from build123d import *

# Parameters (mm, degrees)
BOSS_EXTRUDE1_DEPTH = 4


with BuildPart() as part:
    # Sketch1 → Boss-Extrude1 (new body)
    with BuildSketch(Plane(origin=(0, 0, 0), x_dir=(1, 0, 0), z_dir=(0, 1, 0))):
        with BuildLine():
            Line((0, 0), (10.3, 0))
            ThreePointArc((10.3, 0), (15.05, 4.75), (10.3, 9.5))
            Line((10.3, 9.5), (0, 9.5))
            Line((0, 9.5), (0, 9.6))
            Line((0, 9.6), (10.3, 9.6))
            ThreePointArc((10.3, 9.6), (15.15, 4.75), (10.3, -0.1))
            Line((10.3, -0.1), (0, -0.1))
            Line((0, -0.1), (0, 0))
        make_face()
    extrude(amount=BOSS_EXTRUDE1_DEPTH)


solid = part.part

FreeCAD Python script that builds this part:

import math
import FreeCAD as App
import Part
import Sketcher
Q = App.Units.Quantity

doc = App.newDocument("Part")
params = doc.addObject("Spreadsheet::Sheet", "Params")
for row, (alias, value) in enumerate([
    ("sketch1_radius", "4.85 mm"),
    ("sketch1_radius2", "4.75 mm"),
    ("sketch1_width", "10.3 mm"),
    ("pad1_length", "4 mm"),
], start=1):
    params.set(f"A{row}", alias)
    params.set(f"B{row}", "=" + value)
    params.setAlias(f"B{row}", alias)

body = doc.addObject("PartDesign::Body", "Body")

# Sketch on XZ plane
sketch1 = body.newObject("Sketcher::SketchObject", "Sketch")
sketch1.AttachmentSupport = (doc.getObject("XZ_Plane"), [""])
sketch1.MapMode = "FlatFace"
sketch1.addGeometry(Part.LineSegment(App.Vector(10.3, 0, 0), App.Vector(0, 0, 0)), False)
sketch1.addGeometry(Part.LineSegment(App.Vector(0, 0, 0), App.Vector(0, 0.1, 0)), False)
sketch1.addGeometry(Part.LineSegment(App.Vector(0, 0.1, 0), App.Vector(10.3, 0.1, 0)), False)
sketch1.addGeometry(Part.ArcOfCircle(Part.Circle(App.Vector(10.3, -4.75, 0), App.Vector(0, 0, 1), 4.85), math.radians(-90), math.radians(90)), False)
sketch1.addGeometry(Part.LineSegment(App.Vector(10.3, -9.6, 0), App.Vector(0, -9.6, 0)), False)
sketch1.addGeometry(Part.LineSegment(App.Vector(0, -9.6, 0), App.Vector(0, -9.5, 0)), False)
sketch1.addGeometry(Part.LineSegment(App.Vector(0, -9.5, 0), App.Vector(10.3, -9.5, 0)), False)
sketch1.addGeometry(Part.ArcOfCircle(Part.Circle(App.Vector(10.3, -4.75, 0), App.Vector(0, 0, 1), 4.75), math.radians(-90), math.radians(90)), False)
sketch1.addConstraint(Sketcher.Constraint("Coincident", 0, 2, 1, 1))
sketch1.addConstraint(Sketcher.Constraint("Coincident", 1, 2, 2, 1))
sketch1.addConstraint(Sketcher.Constraint("Tangent", 2, 2, 3, 2))
sketch1.addConstraint(Sketcher.Constraint("Tangent", 3, 1, 4, 1))
sketch1.addConstraint(Sketcher.Constraint("Coincident", 4, 2, 5, 1))
sketch1.addConstraint(Sketcher.Constraint("Coincident", 5, 2, 6, 1))
sketch1.addConstraint(Sketcher.Constraint("Tangent", 6, 2, 7, 1))
sketch1.addConstraint(Sketcher.Constraint("Tangent", 7, 2, 0, 1))
sketch1.addConstraint(Sketcher.Constraint("Horizontal", 0))
sketch1.addConstraint(Sketcher.Constraint("Vertical", 1))
sketch1.addConstraint(Sketcher.Constraint("Horizontal", 2))
sketch1.addConstraint(Sketcher.Constraint("Horizontal", 4))
sketch1.addConstraint(Sketcher.Constraint("Vertical", 5))
sketch1.addConstraint(Sketcher.Constraint("Horizontal", 6))
sketch1.addConstraint(Sketcher.Constraint("Coincident", 0, 2, -1, 1))
sketch1.addConstraint(Sketcher.Constraint("Coincident", 7, 3, 3, 3))
sketch1.addConstraint(Sketcher.Constraint("PointOnObject", 4, 2, -2))
sketch1.addConstraint(Sketcher.Constraint("Radius", 3, Q("4.85 mm")))
sketch1.addConstraint(Sketcher.Constraint("Radius", 7, Q("4.75 mm")))
sketch1.addConstraint(Sketcher.Constraint("DistanceX", 0, 2, 0, 1, Q("10.3 mm")))
sketch1.setExpression("Constraints[17]", "Params.sketch1_radius")
sketch1.setExpression("Constraints[18]", "Params.sketch1_radius2")
sketch1.setExpression("Constraints[19]", "Params.sketch1_width")
pad1 = body.newObject("PartDesign::Pad", "Pad")
pad1.Profile = sketch1
pad1.setExpression("Length", "Params.pad1_length")
pad1.Reversed = True

doc.recompute()
